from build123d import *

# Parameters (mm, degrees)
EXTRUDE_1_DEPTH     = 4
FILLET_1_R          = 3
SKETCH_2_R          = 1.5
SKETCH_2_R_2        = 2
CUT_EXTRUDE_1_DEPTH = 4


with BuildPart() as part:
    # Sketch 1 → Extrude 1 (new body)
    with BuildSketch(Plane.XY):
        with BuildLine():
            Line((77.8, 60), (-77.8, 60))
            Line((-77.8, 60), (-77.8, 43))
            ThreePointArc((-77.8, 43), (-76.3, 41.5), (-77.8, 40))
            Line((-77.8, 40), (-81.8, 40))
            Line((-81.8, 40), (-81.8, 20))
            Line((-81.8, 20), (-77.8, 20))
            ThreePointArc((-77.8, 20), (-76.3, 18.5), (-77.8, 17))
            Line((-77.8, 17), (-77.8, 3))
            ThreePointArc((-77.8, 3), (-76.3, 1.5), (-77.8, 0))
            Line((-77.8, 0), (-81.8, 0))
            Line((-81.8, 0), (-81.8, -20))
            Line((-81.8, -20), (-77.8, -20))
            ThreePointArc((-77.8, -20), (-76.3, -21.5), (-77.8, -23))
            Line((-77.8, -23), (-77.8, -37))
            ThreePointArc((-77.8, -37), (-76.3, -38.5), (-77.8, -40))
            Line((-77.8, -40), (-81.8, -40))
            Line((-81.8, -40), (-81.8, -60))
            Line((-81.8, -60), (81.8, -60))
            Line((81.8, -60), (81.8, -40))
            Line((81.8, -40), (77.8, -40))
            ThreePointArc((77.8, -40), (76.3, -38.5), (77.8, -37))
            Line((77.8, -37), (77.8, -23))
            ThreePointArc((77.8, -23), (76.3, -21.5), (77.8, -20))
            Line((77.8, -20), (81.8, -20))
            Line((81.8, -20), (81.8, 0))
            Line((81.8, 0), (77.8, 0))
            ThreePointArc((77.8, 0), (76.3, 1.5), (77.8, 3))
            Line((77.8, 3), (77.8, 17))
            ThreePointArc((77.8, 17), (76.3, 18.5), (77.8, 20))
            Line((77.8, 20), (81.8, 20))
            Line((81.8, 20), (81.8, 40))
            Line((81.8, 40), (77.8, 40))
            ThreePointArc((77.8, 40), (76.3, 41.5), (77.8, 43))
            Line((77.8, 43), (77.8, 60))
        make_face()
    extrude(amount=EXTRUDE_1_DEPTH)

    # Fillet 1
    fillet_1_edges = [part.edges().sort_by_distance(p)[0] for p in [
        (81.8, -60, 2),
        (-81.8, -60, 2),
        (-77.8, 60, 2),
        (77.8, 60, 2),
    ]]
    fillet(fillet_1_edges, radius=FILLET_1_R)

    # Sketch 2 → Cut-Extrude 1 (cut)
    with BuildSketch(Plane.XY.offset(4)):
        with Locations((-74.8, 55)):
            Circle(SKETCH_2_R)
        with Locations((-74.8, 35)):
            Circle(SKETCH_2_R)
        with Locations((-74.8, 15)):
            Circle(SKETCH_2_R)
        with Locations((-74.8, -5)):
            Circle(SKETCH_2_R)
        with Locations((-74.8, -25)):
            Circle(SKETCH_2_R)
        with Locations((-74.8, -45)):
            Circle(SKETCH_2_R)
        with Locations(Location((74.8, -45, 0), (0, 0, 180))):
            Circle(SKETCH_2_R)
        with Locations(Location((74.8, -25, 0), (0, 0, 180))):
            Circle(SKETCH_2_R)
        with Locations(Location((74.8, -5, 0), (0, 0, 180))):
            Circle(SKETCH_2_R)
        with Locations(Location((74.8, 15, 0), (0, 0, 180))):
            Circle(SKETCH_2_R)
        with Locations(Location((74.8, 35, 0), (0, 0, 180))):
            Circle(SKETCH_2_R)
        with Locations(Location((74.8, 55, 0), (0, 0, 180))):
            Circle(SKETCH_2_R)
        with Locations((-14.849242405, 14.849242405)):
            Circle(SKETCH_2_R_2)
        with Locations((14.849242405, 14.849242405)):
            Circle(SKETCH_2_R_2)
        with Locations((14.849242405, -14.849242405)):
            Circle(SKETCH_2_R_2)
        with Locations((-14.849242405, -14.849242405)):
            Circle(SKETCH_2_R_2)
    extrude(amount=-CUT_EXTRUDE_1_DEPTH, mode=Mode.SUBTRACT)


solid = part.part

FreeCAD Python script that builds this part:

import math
import FreeCAD as App
import Part
import Sketcher
from FreeCAD import Vector
Q = App.Units.Quantity


def edges_at(feature, points):
    """Names of the edges that pass closest to the given points."""
    edges = feature.Shape.Edges
    near = lambda p: min(range(len(edges)), key=lambda i: edges[i].distToShape(Part.Vertex(*p))[0])
    return sorted({f"Edge{near(p) + 1}" for p in points})

doc = App.newDocument("Part")
body = doc.addObject("PartDesign::Body", "Body")

# Sketch on XY plane
sketch1 = body.newObject("Sketcher::SketchObject", "Sketch")
sketch1.AttachmentSupport = (doc.getObject("XY_Plane"), [""])
sketch1.MapMode = "FlatFace"
sketch1.addGeometry([
    Part.LineSegment(Vector(77.8, 60, 0), Vector(-77.8, 60, 0)),  # 0
    Part.LineSegment(Vector(-77.8, 60, 0), Vector(-77.8, 43, 0)),  # 1
    Part.ArcOfCircle(Part.Circle(Vector(-77.8, 41.5, 0), Vector(0, 0, 1), 1.5), math.radians(-90), math.radians(90)),  # 2
    Part.LineSegment(Vector(-77.8, 40, 0), Vector(-81.8, 40, 0)),  # 3
    Part.LineSegment(Vector(-81.8, 40, 0), Vector(-81.8, 20, 0)),  # 4
    Part.LineSegment(Vector(-81.8, 20, 0), Vector(-77.8, 20, 0)),  # 5
    Part.ArcOfCircle(Part.Circle(Vector(-77.8, 18.5, 0), Vector(0, 0, 1), 1.5), math.radians(-90), math.radians(90)),  # 6
    Part.LineSegment(Vector(-77.8, 17, 0), Vector(-77.8, 3, 0)),  # 7
    Part.ArcOfCircle(Part.Circle(Vector(-77.8, 1.5, 0), Vector(0, 0, 1), 1.5), math.radians(-90), math.radians(90)),  # 8
    Part.LineSegment(Vector(-77.8, 0, 0), Vector(-81.8, 0, 0)),  # 9
    Part.LineSegment(Vector(-81.8, 0, 0), Vector(-81.8, -20, 0)),  # 10
    Part.LineSegment(Vector(-81.8, -20, 0), Vector(-77.8, -20, 0)),  # 11
    Part.ArcOfCircle(Part.Circle(Vector(-77.8, -21.5, 0), Vector(0, 0, 1), 1.5), math.radians(-90), math.radians(90)),  # 12
    Part.LineSegment(Vector(-77.8, -23, 0), Vector(-77.8, -37, 0)),  # 13
    Part.ArcOfCircle(Part.Circle(Vector(-77.8, -38.5, 0), Vector(0, 0, 1), 1.5), math.radians(-90), math.radians(90)),  # 14
    Part.LineSegment(Vector(-77.8, -40, 0), Vector(-81.8, -40, 0)),  # 15
    Part.LineSegment(Vector(-81.8, -40, 0), Vector(-81.8, -60, 0)),  # 16
    Part.LineSegment(Vector(-81.8, -60, 0), Vector(81.8, -60, 0)),  # 17
    Part.LineSegment(Vector(81.8, -60, 0), Vector(81.8, -40, 0)),  # 18
    Part.LineSegment(Vector(81.8, -40, 0), Vector(77.8, -40, 0)),  # 19
    Part.ArcOfCircle(Part.Circle(Vector(77.8, -38.5, 0), Vector(0, 0, 1), 1.5), math.radians(90), math.radians(270)),  # 20
    Part.LineSegment(Vector(77.8, -37, 0), Vector(77.8, -23, 0)),  # 21
    Part.ArcOfCircle(Part.Circle(Vector(77.8, -21.5, 0), Vector(0, 0, 1), 1.5), math.radians(90), math.radians(270)),  # 22
    Part.LineSegment(Vector(77.8, -20, 0), Vector(81.8, -20, 0)),  # 23
    Part.LineSegment(Vector(81.8, -20, 0), Vector(81.8, 0, 0)),  # 24
    Part.LineSegment(Vector(81.8, 0, 0), Vector(77.8, 0, 0)),  # 25
    Part.ArcOfCircle(Part.Circle(Vector(77.8, 1.5, 0), Vector(0, 0, 1), 1.5), math.radians(90), math.radians(270)),  # 26
    Part.LineSegment(Vector(77.8, 3, 0), Vector(77.8, 17, 0)),  # 27
    Part.ArcOfCircle(Part.Circle(Vector(77.8, 18.5, 0), Vector(0, 0, 1), 1.5), math.radians(90), math.radians(270)),  # 28
    Part.LineSegment(Vector(77.8, 20, 0), Vector(81.8, 20, 0)),  # 29
    Part.LineSegment(Vector(81.8, 20, 0), Vector(81.8, 40, 0)),  # 30
    Part.LineSegment(Vector(81.8, 40, 0), Vector(77.8, 40, 0)),  # 31
    Part.ArcOfCircle(Part.Circle(Vector(77.8, 41.5, 0), Vector(0, 0, 1), 1.5), math.radians(90), math.radians(270)),  # 32
    Part.LineSegment(Vector(77.8, 43, 0), Vector(77.8, 60, 0)),  # 33
], False)
sketch1.addConstraint([
    Sketcher.Constraint("Coincident", 0, 2, 1, 1),
    Sketcher.Constraint("Coincident", 1, 2, 2, 2),
    Sketcher.Constraint("Tangent", 2, 1, 3, 1),
    Sketcher.Constraint("Coincident", 3, 2, 4, 1),
    Sketcher.Constraint("Coincident", 4, 2, 5, 1),
    Sketcher.Constraint("Tangent", 5, 2, 6, 2),
    Sketcher.Constraint("Coincident", 6, 1, 7, 1),
    Sketcher.Constraint("Coincident", 7, 2, 8, 2),
    Sketcher.Constraint("Tangent", 8, 1, 9, 1),
    Sketcher.Constraint("Coincident", 9, 2, 10, 1),
    Sketcher.Constraint("Coincident", 10, 2, 11, 1),
    Sketcher.Constraint("Tangent", 11, 2, 12, 2),
    Sketcher.Constraint("Coincident", 12, 1, 13, 1),
    Sketcher.Constraint("Coincident", 13, 2, 14, 2),
    Sketcher.Constraint("Tangent", 14, 1, 15, 1),
    Sketcher.Constraint("Coincident", 15, 2, 16, 1),
    Sketcher.Constraint("Coincident", 16, 2, 17, 1),
    Sketcher.Constraint("Coincident", 17, 2, 18, 1),
    Sketcher.Constraint("Coincident", 18, 2, 19, 1),
    Sketcher.Constraint("Tangent", 19, 2, 20, 2),
    Sketcher.Constraint("Coincident", 20, 1, 21, 1),
    Sketcher.Constraint("Coincident", 21, 2, 22, 2),
    Sketcher.Constraint("Tangent", 22, 1, 23, 1),
    Sketcher.Constraint("Coincident", 23, 2, 24, 1),
    Sketcher.Constraint("Coincident", 24, 2, 25, 1),
    Sketcher.Constraint("Tangent", 25, 2, 26, 2),
    Sketcher.Constraint("Coincident", 26, 1, 27, 1),
    Sketcher.Constraint("Coincident", 27, 2, 28, 2),
    Sketcher.Constraint("Tangent", 28, 1, 29, 1),
    Sketcher.Constraint("Coincident", 29, 2, 30, 1),
    Sketcher.Constraint("Coincident", 30, 2, 31, 1),
    Sketcher.Constraint("Tangent", 31, 2, 32, 2),
    Sketcher.Constraint("Coincident", 32, 1, 33, 1),
    Sketcher.Constraint("Coincident", 33, 2, 0, 1),
    Sketcher.Constraint("Horizontal", 0),
    Sketcher.Constraint("Vertical", 1),
    Sketcher.Constraint("Horizontal", 3),
    Sketcher.Constraint("Vertical", 4),
    Sketcher.Constraint("Horizontal", 5),
    Sketcher.Constraint("Vertical", 7),
    Sketcher.Constraint("Horizontal", 9),
    Sketcher.Constraint("Vertical", 10),
    Sketcher.Constraint("Horizontal", 11),
    Sketcher.Constraint("Vertical", 13),
    Sketcher.Constraint("Horizontal", 15),
    Sketcher.Constraint("Vertical", 16),
    Sketcher.Constraint("Horizontal", 17),
    Sketcher.Constraint("Vertical", 18),
    Sketcher.Constraint("Horizontal", 19),
    Sketcher.Constraint("Vertical", 21),
    Sketcher.Constraint("Horizontal", 23),
    Sketcher.Constraint("Vertical", 24),
    Sketcher.Constraint("Horizontal", 25),
    Sketcher.Constraint("Vertical", 27),
    Sketcher.Constraint("Horizontal", 29),
    Sketcher.Constraint("Vertical", 30),
    Sketcher.Constraint("Horizontal", 31),
    Sketcher.Constraint("Vertical", 33),
    Sketcher.Constraint("Equal", 2, 6),
    Sketcher.Constraint("Equal", 6, 8),
    Sketcher.Constraint("Equal", 8, 12),
    Sketcher.Constraint("Equal", 12, 14),
    Sketcher.Constraint("Equal", 14, 20),
    Sketcher.Constraint("Equal", 20, 22),
    Sketcher.Constraint("Equal", 22, 26),
    Sketcher.Constraint("Equal", 26, 28),
    Sketcher.Constraint("Equal", 28, 32),
    Sketcher.Constraint("Symmetric", 3, 2, 18, 2, -1, 1),
    Sketcher.Constraint("Symmetric", 5, 2, 22, 1, -1, 1),
    Sketcher.Constraint("Symmetric", 9, 2, 24, 2, -1, 1),
    Sketcher.Constraint("Symmetric", 11, 2, 28, 1, -1, 1),
    Sketcher.Constraint("Symmetric", 15, 2, 30, 2, -1, 1),
    Sketcher.Constraint("Symmetric", 14, 3, 20, 3, -2),
    Sketcher.Constraint("Symmetric", 12, 3, 22, 3, -2),
    Sketcher.Constraint("Symmetric", 8, 3, 26, 3, -2),
    Sketcher.Constraint("Vertical", 2, 3, 6, 3),
    Sketcher.Constraint("Vertical", 6, 3, 8, 3),
    Sketcher.Constraint("Vertical", 12, 3, 14, 3),
    Sketcher.Constraint("Vertical", 28, 3, 32, 3),
    Sketcher.Constraint("Vertical", 14, 3, 0, 2),
    Sketcher.Constraint("Vertical", 5, 2, 6, 1),
    Sketcher.Constraint("Vertical", 4, 2, 9, 2),
    Sketcher.Constraint("Vertical", 11, 2, 12, 1),
    Sketcher.Constraint("Vertical", 10, 2, 15, 2),
    Sketcher.Constraint("Vertical", 19, 2, 20, 1),
    Sketcher.Constraint("Vertical", 25, 2, 26, 1),
    Sketcher.Constraint("Vertical", 31, 2, 32, 1),
    Sketcher.Constraint("Equal", 4, 10),
    Sketcher.Constraint("Equal", 10, 16),
    Sketcher.Constraint("Radius", 2, Q("1.5 mm")),
    Sketcher.Constraint("DistanceX", 3, 2, 3, 1, Q("4 mm")),
    Sketcher.Constraint("DistanceY", 1, 2, 1, 1, Q("17 mm")),
    Sketcher.Constraint("DistanceY", 4, 2, 4, 1, Q("20 mm")),
    Sketcher.Constraint("DistanceX", 0, 2, 0, 1, Q("155.6 mm")),
])
pad1 = body.newObject("PartDesign::Pad", "Pad")
pad1.Profile = sketch1
pad1.Length = 4
doc.recompute()

fillet = body.newObject("PartDesign::Fillet", "Fillet")
fillet.Base = (pad1, edges_at(pad1, [
    (81.8, -60, 2),
    (-81.8, -60, 2),
    (-77.8, 60, 2),
    (77.8, 60, 2),
]))
fillet.Radius = 3

# Sketch on XY plane
sketch2 = body.newObject("Sketcher::SketchObject", "Sketch001")
sketch2.AttachmentSupport = (doc.getObject("XY_Plane"), [""])
sketch2.MapMode = "FlatFace"
sketch2.AttachmentOffset = App.Placement(Vector(0, 0, 4), App.Rotation())
sketch2.addGeometry([
    Part.Circle(Vector(-74.8, 55, 0), Vector(0, 0, 1), 1.5),  # 0
    Part.Circle(Vector(-74.8, 35, 0), Vector(0, 0, 1), 1.5),  # 1
    Part.Circle(Vector(-74.8, 15, 0), Vector(0, 0, 1), 1.5),  # 2
    Part.Circle(Vector(-74.8, -5, 0), Vector(0, 0, 1), 1.5),  # 3
    Part.Circle(Vector(-74.8, -25, 0), Vector(0, 0, 1), 1.5),  # 4
    Part.Circle(Vector(-74.8, -45, 0), Vector(0, 0, 1), 1.5),  # 5
    Part.Circle(Vector(74.8, -45, 0), Vector(0, 0, 1), 1.5),  # 6
    Part.Circle(Vector(74.8, -25, 0), Vector(0, 0, 1), 1.5),  # 7
    Part.Circle(Vector(74.8, -5, 0), Vector(0, 0, 1), 1.5),  # 8
    Part.Circle(Vector(74.8, 15, 0), Vector(0, 0, 1), 1.5),  # 9
    Part.Circle(Vector(74.8, 35, 0), Vector(0, 0, 1), 1.5),  # 10
    Part.Circle(Vector(74.8, 55, 0), Vector(0, 0, 1), 1.5),  # 11
    Part.Circle(Vector(-14.8, 14.8, 0), Vector(0, 0, 1), 2),  # 12
    Part.Circle(Vector(14.8, 14.8, 0), Vector(0, 0, 1), 2),  # 13
    Part.Circle(Vector(14.8, -14.8, 0), Vector(0, 0, 1), 2),  # 14
    Part.Circle(Vector(-14.8, -14.8, 0), Vector(0, 0, 1), 2),  # 15
], False)
sketch2.addConstraint([
    Sketcher.Constraint("Equal", 0, 1),
    Sketcher.Constraint("Equal", 1, 2),
    Sketcher.Constraint("Equal", 2, 3),
    Sketcher.Constraint("Equal", 3, 4),
    Sketcher.Constraint("Equal", 4, 5),
    Sketcher.Constraint("Equal", 5, 6),
    Sketcher.Constraint("Equal", 6, 7),
    Sketcher.Constraint("Equal", 7, 8),
    Sketcher.Constraint("Equal", 8, 9),
    Sketcher.Constraint("Equal", 9, 10),
    Sketcher.Constraint("Equal", 10, 11),
    Sketcher.Constraint("Equal", 12, 13),
    Sketcher.Constraint("Equal", 13, 14),
    Sketcher.Constraint("Equal", 14, 15),
    Sketcher.Constraint("Symmetric", 12, 3, 14, 3, -1, 1),
    Sketcher.Constraint("Symmetric", 13, 3, 15, 3, -1, 1),
    Sketcher.Constraint("Symmetric", 5, 3, 6, 3, -2),
    Sketcher.Constraint("Symmetric", 4, 3, 7, 3, -2),
    Sketcher.Constraint("Symmetric", 3, 3, 8, 3, -2),
    Sketcher.Constraint("Symmetric", 2, 3, 9, 3, -2),
    Sketcher.Constraint("Symmetric", 1, 3, 10, 3, -2),
    Sketcher.Constraint("Symmetric", 0, 3, 11, 3, -2),
    Sketcher.Constraint("Symmetric", 12, 3, 13, 3, -2),
    Sketcher.Constraint("Vertical", 0, 3, 1, 3),
    Sketcher.Constraint("Vertical", 1, 3, 2, 3),
    Sketcher.Constraint("Vertical", 2, 3, 3, 3),
    Sketcher.Constraint("Vertical", 3, 3, 4, 3),
    Sketcher.Constraint("Vertical", 4, 3, 5, 3),
    Sketcher.Constraint("Diameter", 0, Q("3 mm")),
    Sketcher.Constraint("Diameter", 12, Q("4 mm")),
    Sketcher.Constraint("DistanceY", -1, 1, 0, 3, Q("55 mm")),
    Sketcher.Constraint("DistanceY", -1, 1, 1, 3, Q("35 mm")),
    Sketcher.Constraint("DistanceY", -1, 1, 2, 3, Q("15 mm")),
    Sketcher.Constraint("DistanceY", 3, 3, -1, 1, Q("5 mm")),
    Sketcher.Constraint("DistanceY", 4, 3, -1, 1, Q("25 mm")),
    Sketcher.Constraint("DistanceY", 5, 3, -1, 1, Q("45 mm")),
    Sketcher.Constraint("DistanceX", 0, 3, -1, 1, Q("74.8 mm")),
    Sketcher.Constraint("DistanceX", 12, 3, -1, 1, Q("14.849242 mm")),
    Sketcher.Constraint("DistanceY", -1, 1, 12, 3, Q("14.849242 mm")),
])
pocket1 = body.newObject("PartDesign::Pocket", "Pocket")
pocket1.Profile = sketch2
pocket1.Length = 4

doc.recompute()
